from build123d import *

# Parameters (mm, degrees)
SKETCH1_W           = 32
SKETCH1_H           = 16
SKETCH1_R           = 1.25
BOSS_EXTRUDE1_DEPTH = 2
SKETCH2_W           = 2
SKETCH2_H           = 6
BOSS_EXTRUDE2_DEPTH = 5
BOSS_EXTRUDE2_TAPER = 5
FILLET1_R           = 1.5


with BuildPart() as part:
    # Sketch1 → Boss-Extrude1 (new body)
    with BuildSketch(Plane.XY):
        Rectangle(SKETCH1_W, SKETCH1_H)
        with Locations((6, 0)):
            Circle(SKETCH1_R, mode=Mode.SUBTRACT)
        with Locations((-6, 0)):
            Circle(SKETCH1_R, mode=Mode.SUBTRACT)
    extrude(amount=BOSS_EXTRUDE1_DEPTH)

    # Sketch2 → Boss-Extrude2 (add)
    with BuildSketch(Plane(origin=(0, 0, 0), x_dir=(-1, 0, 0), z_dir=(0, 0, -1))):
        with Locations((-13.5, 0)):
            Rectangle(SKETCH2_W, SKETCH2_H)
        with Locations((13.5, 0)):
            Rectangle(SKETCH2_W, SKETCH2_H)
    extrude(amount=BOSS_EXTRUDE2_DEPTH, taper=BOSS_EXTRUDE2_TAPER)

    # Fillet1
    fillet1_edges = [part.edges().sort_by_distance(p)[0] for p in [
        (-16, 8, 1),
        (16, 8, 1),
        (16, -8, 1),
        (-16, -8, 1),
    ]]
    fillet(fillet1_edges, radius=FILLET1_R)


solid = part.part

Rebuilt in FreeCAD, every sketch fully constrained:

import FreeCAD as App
import Part
import Sketcher

V = App.Vector


def edges_at(feature, points):
    """Names of the edges that pass closest to the given points."""
    edges = feature.Shape.Edges
    near = lambda p: min(range(len(edges)), key=lambda i: edges[i].distToShape(Part.Vertex(*p))[0])
    return sorted({f"Edge{near(p) + 1}" for p in points})

doc = App.newDocument("Part")
body = doc.addObject("PartDesign::Body", "Body")

# Sketch on XY plane
sketch1 = body.newObject("Sketcher::SketchObject", "Sketch")
sketch1.AttachmentSupport = (doc.getObject("XY_Plane"), [""])
sketch1.MapMode = "FlatFace"
sketch1.addGeometry([
    Part.LineSegment(V(-16, 8, 0), V(-16, -8, 0)),  # 0
    Part.LineSegment(V(-16, -8, 0), V(16, -8, 0)),  # 1
    Part.LineSegment(V(16, -8, 0), V(16, 8, 0)),  # 2
    Part.LineSegment(V(16, 8, 0), V(-16, 8, 0)),  # 3
    Part.Circle(V(-6, 0, 0), V(0, 0, 1), 1.25),  # 4
    Part.Circle(V(6, 0, 0), V(0, 0, 1), 1.25),  # 5
], False)
sketch1.addConstraint([
    Sketcher.Constraint("Coincident", 0, 2, 1, 1),
    Sketcher.Constraint("Coincident", 1, 2, 2, 1),
    Sketcher.Constraint("Coincident", 2, 2, 3, 1),
    Sketcher.Constraint("Coincident", 3, 2, 0, 1),
    Sketcher.Constraint("Vertical", 0),
    Sketcher.Constraint("Horizontal", 1),
    Sketcher.Constraint("Vertical", 2),
    Sketcher.Constraint("Horizontal", 3),
    Sketcher.Constraint("Equal", 4, 5),
    Sketcher.Constraint("Symmetric", 4, 3, 5, 3, -1, 1),
    Sketcher.Constraint("Symmetric", 0, 2, 2, 2, -1, 1),
    Sketcher.Constraint("PointOnObject", 4, 3, -1),
    Sketcher.Constraint("Diameter", 4, 2.5),
    Sketcher.Constraint("DistanceX", 1, 1, 1, 2, 32.0),
    Sketcher.Constraint("DistanceY", 0, 2, 0, 1, 16.0),
    Sketcher.Constraint("DistanceX", 4, 3, -1, 1, 6.0),
])
pad1 = body.newObject("PartDesign::Pad", "Pad")
pad1.Profile = sketch1
pad1.Length = 2

# Sketch on XY plane
sketch2 = body.newObject("Sketcher::SketchObject", "Sketch001")
sketch2.AttachmentSupport = (doc.getObject("XY_Plane"), [""])
sketch2.MapMode = "FlatFace"
sketch2.addGeometry([
    Part.LineSegment(V(14.5, 3, 0), V(14.5, -3, 0)),  # 0
    Part.LineSegment(V(14.5, -3, 0), V(12.5, -3, 0)),  # 1
    Part.LineSegment(V(12.5, -3, 0), V(12.5, 3, 0)),  # 2
    Part.LineSegment(V(12.5, 3, 0), V(14.5, 3, 0)),  # 3
    Part.LineSegment(V(-12.5, 3, 0), V(-12.5, -3, 0)),  # 4
    Part.LineSegment(V(-12.5, -3, 0), V(-14.5, -3, 0)),  # 5
    Part.LineSegment(V(-14.5, -3, 0), V(-14.5, 3, 0)),  # 6
    Part.LineSegment(V(-14.5, 3, 0), V(-12.5, 3, 0)),  # 7
], False)
sketch2.addConstraint([
    Sketcher.Constraint("Coincident", 0, 2, 1, 1),
    Sketcher.Constraint("Coincident", 1, 2, 2, 1),
    Sketcher.Constraint("Coincident", 2, 2, 3, 1),
    Sketcher.Constraint("Coincident", 3, 2, 0, 1),
    Sketcher.Constraint("Coincident", 4, 2, 5, 1),
    Sketcher.Constraint("Coincident", 5, 2, 6, 1),
    Sketcher.Constraint("Coincident", 6, 2, 7, 1),
    Sketcher.Constraint("Coincident", 7, 2, 4, 1),
    Sketcher.Constraint("Vertical", 0),
    Sketcher.Constraint("Horizontal", 1),
    Sketcher.Constraint("Vertical", 2),
    Sketcher.Constraint("Horizontal", 3),
    Sketcher.Constraint("Vertical", 4),
    Sketcher.Constraint("Horizontal", 5),
    Sketcher.Constraint("Vertical", 6),
    Sketcher.Constraint("Horizontal", 7),
    Sketcher.Constraint("Symmetric", 2, 2, 4, 2, -1, 1),
    Sketcher.Constraint("Symmetric", 0, 2, 6, 2, -1, 1),
    Sketcher.Constraint("Horizontal", 1, 2, 4, 2),
    Sketcher.Constraint("DistanceX", 1, 2, 1, 1, 2.0),
    Sketcher.Constraint("DistanceY", 0, 2, 0, 1, 6.0),
    Sketcher.Constraint("DistanceX", 4, 2, 1, 2, 25.0),
])
pad2 = body.newObject("PartDesign::Pad", "Pad001")
pad2.Profile = sketch2
pad2.Length = 5
pad2.Reversed = True
pad2.TaperAngle = -5
doc.recompute()

fillet = body.newObject("PartDesign::Fillet", "Fillet")
fillet.Base = (pad2, edges_at(pad2, [
    (-16, 8, 1),
    (16, 8, 1),
    (16, -8, 1),
    (-16, -8, 1),
]))
fillet.Radius = 1.5

doc.recompute()
